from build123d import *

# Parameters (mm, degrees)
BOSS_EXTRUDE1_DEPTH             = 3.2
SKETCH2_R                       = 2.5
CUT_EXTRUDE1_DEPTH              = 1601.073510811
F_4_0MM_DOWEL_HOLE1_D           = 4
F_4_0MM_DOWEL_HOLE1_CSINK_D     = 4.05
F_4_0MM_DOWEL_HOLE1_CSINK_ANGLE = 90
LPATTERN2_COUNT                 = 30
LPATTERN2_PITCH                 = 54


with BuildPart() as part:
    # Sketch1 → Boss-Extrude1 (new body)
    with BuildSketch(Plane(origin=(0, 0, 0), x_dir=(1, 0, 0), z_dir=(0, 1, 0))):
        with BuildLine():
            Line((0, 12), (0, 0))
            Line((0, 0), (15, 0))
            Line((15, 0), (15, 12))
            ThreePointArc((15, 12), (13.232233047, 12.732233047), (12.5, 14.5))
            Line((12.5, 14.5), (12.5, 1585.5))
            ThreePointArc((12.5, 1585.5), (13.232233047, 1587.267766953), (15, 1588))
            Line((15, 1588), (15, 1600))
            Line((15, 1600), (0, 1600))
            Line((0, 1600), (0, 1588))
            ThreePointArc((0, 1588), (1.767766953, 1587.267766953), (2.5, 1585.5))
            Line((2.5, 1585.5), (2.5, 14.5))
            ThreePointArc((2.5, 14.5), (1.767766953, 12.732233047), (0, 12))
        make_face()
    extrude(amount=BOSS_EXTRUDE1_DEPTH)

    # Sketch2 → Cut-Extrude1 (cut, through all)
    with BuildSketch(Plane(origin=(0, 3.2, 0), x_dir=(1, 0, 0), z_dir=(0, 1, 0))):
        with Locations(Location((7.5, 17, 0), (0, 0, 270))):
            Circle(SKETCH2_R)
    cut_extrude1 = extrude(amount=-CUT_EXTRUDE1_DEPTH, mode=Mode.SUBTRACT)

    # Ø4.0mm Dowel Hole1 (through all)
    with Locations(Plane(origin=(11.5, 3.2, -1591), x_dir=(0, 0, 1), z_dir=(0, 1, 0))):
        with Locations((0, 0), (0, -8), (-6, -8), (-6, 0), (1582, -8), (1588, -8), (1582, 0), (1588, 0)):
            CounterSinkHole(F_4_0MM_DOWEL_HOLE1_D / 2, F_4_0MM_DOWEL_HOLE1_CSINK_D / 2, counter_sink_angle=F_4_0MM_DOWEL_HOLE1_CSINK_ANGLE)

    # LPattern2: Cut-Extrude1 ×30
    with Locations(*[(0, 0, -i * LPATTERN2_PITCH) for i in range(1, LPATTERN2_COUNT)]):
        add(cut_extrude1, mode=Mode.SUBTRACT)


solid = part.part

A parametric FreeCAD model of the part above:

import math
import FreeCAD as App
import Part
import Sketcher

V = App.Vector

doc = App.newDocument("Part")
params = doc.addObject("Spreadsheet::Sheet", "Params")
for row, (alias, value) in enumerate([
    ("sketch1_radius", "2.5 mm"),
    ("sketch1_width", "15 mm"),
    ("sketch1_height", "12 mm"),
    ("sketch1_height2", "1571 mm"),
    ("pad1_length", "3.2 mm"),
    ("sketch2_diameter", "5 mm"),
    ("sketch3_diameter", "4 mm"),
    ("hole_diameter", "4 mm"),
    ("hole_csink_diameter", "4.05 mm"),
    ("linearpattern_pitch", "54 mm"),
], start=1):
    params.set(f"A{row}", alias)
    params.set(f"B{row}", "=" + value)
    params.setAlias(f"B{row}", alias)

body = doc.addObject("PartDesign::Body", "Body")

sketch1 = doc.addObject("Sketcher::SketchObject", "Sketch")
body.addObject(sketch1)
sketch1.AttachmentSupport = (doc.XZ_Plane, [""])
sketch1.MapMode = "FlatFace"
sketch1.addGeometry([
    Part.LineSegment(V(0, -12, 0), V(0, 0, 0)),
    Part.LineSegment(V(0, 0, 0), V(15, 0, 0)),
    Part.LineSegment(V(15, 0, 0), V(15, -12, 0)),
    Part.ArcOfCircle(Part.Circle(V(15, -14.5, 0), V(0, 0, 1), 2.5), math.radians(90), math.radians(180)),
    Part.LineSegment(V(12.5, -14.5, 0), V(12.5, -1585.5, 0)),
    Part.ArcOfCircle(Part.Circle(V(15, -1585.5, 0), V(0, 0, 1), 2.5), math.radians(180), math.radians(270)),
    Part.LineSegment(V(15, -1588, 0), V(15, -1600, 0)),
    Part.LineSegment(V(15, -1600, 0), V(0, -1600, 0)),
    Part.LineSegment(V(0, -1600, 0), V(0, -1588, 0)),
    Part.ArcOfCircle(Part.Circle(V(0, -1585.5, 0), V(0, 0, 1), 2.5), math.radians(-90), math.radians(0)),
    Part.LineSegment(V(2.5, -1585.5, 0), V(2.5, -14.5, 0)),
    Part.ArcOfCircle(Part.Circle(V(0, -14.5, 0), V(0, 0, 1), 2.5), math.radians(0), math.radians(90)),
], False)
sketch1.addConstraint([
    Sketcher.Constraint("Coincident", 0, 2, 1, 1),
    Sketcher.Constraint("Coincident", 1, 2, 2, 1),
    Sketcher.Constraint("Coincident", 2, 2, 3, 1),
    Sketcher.Constraint("Tangent", 3, 2, 4, 1),
    Sketcher.Constraint("Tangent", 4, 2, 5, 1),
    Sketcher.Constraint("Coincident", 5, 2, 6, 1),
    Sketcher.Constraint("Coincident", 6, 2, 7, 1),
    Sketcher.Constraint("Coincident", 7, 2, 8, 1),
    Sketcher.Constraint("Coincident", 8, 2, 9, 1),
    Sketcher.Constraint("Tangent", 9, 2, 10, 1),
    Sketcher.Constraint("Tangent", 10, 2, 11, 1),
    Sketcher.Constraint("Coincident", 11, 2, 0, 1),
    Sketcher.Constraint("Vertical", 0),
    Sketcher.Constraint("Horizontal", 1),
    Sketcher.Constraint("Vertical", 2),
    Sketcher.Constraint("Vertical", 4),
    Sketcher.Constraint("Vertical", 6),
    Sketcher.Constraint("Horizontal", 7),
    Sketcher.Constraint("Vertical", 8),
    Sketcher.Constraint("Vertical", 10),
    Sketcher.Constraint("Coincident", 0, 2, -1, 1),
    Sketcher.Constraint("Equal", 3, 5),
    Sketcher.Constraint("Equal", 5, 9),
    Sketcher.Constraint("Equal", 9, 11),
    Sketcher.Constraint("PointOnObject", 9, 3, -2),
    Sketcher.Constraint("PointOnObject", 7, 2, -2),
    Sketcher.Constraint("Horizontal", 5, 3, 9, 3),
    Sketcher.Constraint("Horizontal", 3, 3, 11, 3),
    Sketcher.Constraint("Vertical", 5, 3, 1, 2),
    Sketcher.Constraint("Vertical", 2, 2, 5, 2),
    Sketcher.Constraint("Equal", 2, 6),
    Sketcher.Constraint("Radius", 3, 2.5),
    Sketcher.Constraint("DistanceX", 1, 1, 1, 2, 15.0),
    Sketcher.Constraint("DistanceY", 0, 1, 0, 2, 12.0),
    Sketcher.Constraint("DistanceY", 4, 2, 4, 1, 1571.0),
])
sketch1.setExpression("Constraints[31]", "Params.sketch1_radius")
sketch1.setExpression("Constraints[32]", "Params.sketch1_width")
sketch1.setExpression("Constraints[33]", "Params.sketch1_height")
sketch1.setExpression("Constraints[34]", "Params.sketch1_height2")
pad1 = doc.addObject("PartDesign::Pad", "Pad")
body.addObject(pad1)
pad1.Profile = sketch1
pad1.setExpression("Length", "Params.pad1_length")
pad1.Reversed = True

sketch2 = doc.addObject("Sketcher::SketchObject", "Sketch001")
body.addObject(sketch2)
sketch2.AttachmentSupport = (doc.XZ_Plane, [""])
sketch2.MapMode = "FlatFace"
sketch2.AttachmentOffset = App.Placement(V(0, 0, -3.2), App.Rotation())
sketch2.addGeometry(Part.Circle(V(7.5, -17, 0), V(0, 0, 1), 2.5), False)
sketch2.addConstraint([
    Sketcher.Constraint("Diameter", 0, 5.0),
    Sketcher.Constraint("DistanceY", 0, 3, -1, 1, 17.0),
    Sketcher.Constraint("DistanceX", -1, 1, 0, 3, 7.5),
])
sketch2.setExpression("Constraints[0]", "Params.sketch2_diameter")
pocket1 = doc.addObject("PartDesign::Pocket", "Pocket")
body.addObject(pocket1)
pocket1.Profile = sketch2
pocket1.Type = "ThroughAll"
pocket1.Reversed = True

sketch3 = doc.addObject("Sketcher::SketchObject", "Sketch002")
body.addObject(sketch3)
sketch3.AttachmentSupport = (doc.XZ_Plane, [""])
sketch3.MapMode = "FlatFace"
sketch3.AttachmentOffset = App.Placement(V(0, 0, -3.2), App.Rotation())
sketch3.addGeometry([
    Part.Circle(V(11.5, -1591, 0), V(0, 0, 1), 2),
    Part.Circle(V(3.5, -1591, 0), V(0, 0, 1), 2),
    Part.Circle(V(3.5, -1597, 0), V(0, 0, 1), 2),
    Part.Circle(V(11.5, -1597, 0), V(0, 0, 1), 2),
    Part.Circle(V(3.5, -9, 0), V(0, 0, 1), 2),
    Part.Circle(V(3.5, -3, 0), V(0, 0, 1), 2),
    Part.Circle(V(11.5, -9, 0), V(0, 0, 1), 2),
    Part.Circle(V(11.5, -3, 0), V(0, 0, 1), 2),
], False)
sketch3.addConstraint([
    Sketcher.Constraint("Equal", 0, 1),
    Sketcher.Constraint("Equal", 1, 2),
    Sketcher.Constraint("Equal", 2, 3),
    Sketcher.Constraint("Equal", 3, 4),
    Sketcher.Constraint("Equal", 4, 5),
    Sketcher.Constraint("Equal", 5, 6),
    Sketcher.Constraint("Equal", 6, 7),
    Sketcher.Constraint("Horizontal", 0, 3, 1, 3),
    Sketcher.Constraint("Horizontal", 2, 3, 3, 3),
    Sketcher.Constraint("Horizontal", 4, 3, 6, 3),
    Sketcher.Constraint("Horizontal", 5, 3, 7, 3),
    Sketcher.Constraint("Vertical", 1, 3, 2, 3),
    Sketcher.Constraint("Vertical", 0, 3, 3, 3),
    Sketcher.Constraint("Vertical", 2, 3, 4, 3),
    Sketcher.Constraint("Vertical", 4, 3, 5, 3),
    Sketcher.Constraint("Vertical", 3, 3, 6, 3),
    Sketcher.Constraint("Vertical", 6, 3, 7, 3),
    Sketcher.Constraint("Diameter", 0, 4.0),
    Sketcher.Constraint("DistanceY", 0, 3, -1, 1, 1591.0),
    Sketcher.Constraint("DistanceY", 2, 3, -1, 1, 1597.0),
    Sketcher.Constraint("DistanceY", 4, 3, -1, 1, 9.0),
    Sketcher.Constraint("DistanceY", 5, 3, -1, 1, 3.0),
    Sketcher.Constraint("DistanceX", 1, 3, 0, 3, 8.0),
    Sketcher.Constraint("DistanceX", -1, 1, 0, 3, 11.5),
])
sketch3.setExpression("Constraints[17]", "Params.sketch3_diameter")
doc.recompute()
hole = doc.addObject("PartDesign::Hole", "Hole")
body.addObject(hole)
hole.Profile = sketch3
hole.ThreadType = "None"
hole.setExpression("Diameter", "Params.hole_diameter")
hole.DepthType = "ThroughAll"
hole.HoleCutType = "Countersink"
hole.setExpression("HoleCutDiameter", "Params.hole_csink_diameter")
hole.HoleCutCountersinkAngle = 90
hole.Reversed = True
doc.recompute()

linearpattern = doc.addObject("PartDesign::LinearPattern", "LinearPattern")
body.addObject(linearpattern)
linearpattern.Originals = [pocket1]
linearpattern.Direction = (doc.Z_Axis, [""])
linearpattern.Mode = "offset"
linearpattern.setExpression("Offset", "Params.linearpattern_pitch")
linearpattern.Occurrences = 30
linearpattern.Reversed = True
body.Tip = linearpattern

doc.recompute()
